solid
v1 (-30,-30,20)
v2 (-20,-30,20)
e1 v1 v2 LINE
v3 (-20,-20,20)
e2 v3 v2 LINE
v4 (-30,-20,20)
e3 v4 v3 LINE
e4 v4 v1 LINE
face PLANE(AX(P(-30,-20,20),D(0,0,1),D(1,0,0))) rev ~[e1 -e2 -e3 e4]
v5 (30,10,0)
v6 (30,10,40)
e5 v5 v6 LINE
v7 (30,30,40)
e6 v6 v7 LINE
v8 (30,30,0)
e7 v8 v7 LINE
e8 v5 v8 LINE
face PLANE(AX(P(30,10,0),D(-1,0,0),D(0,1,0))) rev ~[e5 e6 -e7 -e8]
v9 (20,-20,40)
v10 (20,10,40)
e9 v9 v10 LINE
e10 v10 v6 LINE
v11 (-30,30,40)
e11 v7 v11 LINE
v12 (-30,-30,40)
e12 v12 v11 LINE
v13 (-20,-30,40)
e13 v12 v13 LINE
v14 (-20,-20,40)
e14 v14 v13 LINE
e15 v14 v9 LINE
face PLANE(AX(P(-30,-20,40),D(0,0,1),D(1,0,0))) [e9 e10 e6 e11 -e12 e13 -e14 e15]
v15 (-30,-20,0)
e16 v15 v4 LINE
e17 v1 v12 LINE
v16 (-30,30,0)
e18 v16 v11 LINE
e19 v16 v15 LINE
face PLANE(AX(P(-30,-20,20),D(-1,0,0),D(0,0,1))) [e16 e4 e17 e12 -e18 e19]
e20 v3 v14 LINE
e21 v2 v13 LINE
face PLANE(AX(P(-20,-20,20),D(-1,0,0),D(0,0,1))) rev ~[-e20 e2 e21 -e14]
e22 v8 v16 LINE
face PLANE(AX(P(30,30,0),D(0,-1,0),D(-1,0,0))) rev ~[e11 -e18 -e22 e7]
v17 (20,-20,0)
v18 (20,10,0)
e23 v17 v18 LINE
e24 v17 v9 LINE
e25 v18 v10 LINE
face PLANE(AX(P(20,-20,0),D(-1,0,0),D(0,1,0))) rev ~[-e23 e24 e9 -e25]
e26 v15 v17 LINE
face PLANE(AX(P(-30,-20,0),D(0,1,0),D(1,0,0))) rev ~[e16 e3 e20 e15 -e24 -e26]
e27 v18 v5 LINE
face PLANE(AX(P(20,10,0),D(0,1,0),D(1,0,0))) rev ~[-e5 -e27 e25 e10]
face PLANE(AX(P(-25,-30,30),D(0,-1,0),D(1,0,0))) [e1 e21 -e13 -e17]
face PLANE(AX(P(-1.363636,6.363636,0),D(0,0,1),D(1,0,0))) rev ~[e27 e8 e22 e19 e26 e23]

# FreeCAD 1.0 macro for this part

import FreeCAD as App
import Part
import Sketcher
Q = App.Units.Quantity


def add_polygon(sketch, points):
    """Adds a closed chain of lines whose ends are joined by coincident constraints."""
    first, n = sketch.GeometryCount, len(points)
    for a, b in zip(points, points[1:] + points[:1]):
        sketch.addGeometry(Part.LineSegment(App.Vector(*a, 0), App.Vector(*b, 0)), False)
    for i in range(n):
        sketch.addConstraint(Sketcher.Constraint("Coincident", first + i, 2, first + (i + 1) % n, 1))

doc = App.newDocument("Part")
body = doc.addObject("PartDesign::Body", "Body")

# Sketch on XY plane
sketch1 = body.newObject("Sketcher::SketchObject", "Sketch")
sketch1.AttachmentSupport = (doc.getObject("XY_Plane"), [""])
sketch1.MapMode = "FlatFace"
add_polygon(sketch1, [(30, 10), (30, 30), (-30, 30), (-30, -20), (20, -20), (20, 10)])  # lines 0-5
sketch1.addConstraint([
    Sketcher.Constraint("Vertical", 0),
    Sketcher.Constraint("Horizontal", 1),
    Sketcher.Constraint("Vertical", 2),
    Sketcher.Constraint("Horizontal", 3),
    Sketcher.Constraint("Vertical", 4),
    Sketcher.Constraint("Horizontal", 5),
    Sketcher.Constraint("Equal", 3, 2),
    Sketcher.Constraint("DistanceX", 1, 2, 1, 1, Q("60 mm")),
    Sketcher.Constraint("DistanceX", 3, 1, 3, 2, Q("50 mm")),
    Sketcher.Constraint("DistanceY", 0, 1, 0, 2, Q("20 mm")),
    Sketcher.Constraint("DistanceX", -1, 1, 0, 2, Q("30 mm")),
    Sketcher.Constraint("DistanceY", -1, 1, 0, 2, Q("30 mm")),
])
pad1 = body.newObject("PartDesign::Pad", "Pad")
pad1.Profile = sketch1
pad1.Length = 40

# Sketch on XZ plane
sketch2 = body.newObject("Sketcher::SketchObject", "Sketch001")
sketch2.AttachmentSupport = (doc.getObject("XZ_Plane"), [""])
sketch2.MapMode = "FlatFace"
sketch2.AttachmentOffset = App.Placement(App.Vector(0, 0, 20), App.Rotation())
add_polygon(sketch2, [(-30, 40), (-30, 20), (-20, 20), (-20, 40)])  # lines 0-3
sketch2.addConstraint([
    Sketcher.Constraint("Vertical", 0),
    Sketcher.Constraint("Horizontal", 1),
    Sketcher.Constraint("Vertical", 2),
    Sketcher.Constraint("Horizontal", 3),
    Sketcher.Constraint("DistanceX", 1, 1, 1, 2, Q("10 mm")),
    Sketcher.Constraint("DistanceY", 0, 2, 0, 1, Q("20 mm")),
    Sketcher.Constraint("DistanceX", 0, 2, -1, 1, Q("30 mm")),
    Sketcher.Constraint("DistanceY", -1, 1, 0, 2, Q("20 mm")),
])
pad2 = body.newObject("PartDesign::Pad", "Pad001")
pad2.Profile = sketch2
pad2.Length = 10

doc.recompute()
